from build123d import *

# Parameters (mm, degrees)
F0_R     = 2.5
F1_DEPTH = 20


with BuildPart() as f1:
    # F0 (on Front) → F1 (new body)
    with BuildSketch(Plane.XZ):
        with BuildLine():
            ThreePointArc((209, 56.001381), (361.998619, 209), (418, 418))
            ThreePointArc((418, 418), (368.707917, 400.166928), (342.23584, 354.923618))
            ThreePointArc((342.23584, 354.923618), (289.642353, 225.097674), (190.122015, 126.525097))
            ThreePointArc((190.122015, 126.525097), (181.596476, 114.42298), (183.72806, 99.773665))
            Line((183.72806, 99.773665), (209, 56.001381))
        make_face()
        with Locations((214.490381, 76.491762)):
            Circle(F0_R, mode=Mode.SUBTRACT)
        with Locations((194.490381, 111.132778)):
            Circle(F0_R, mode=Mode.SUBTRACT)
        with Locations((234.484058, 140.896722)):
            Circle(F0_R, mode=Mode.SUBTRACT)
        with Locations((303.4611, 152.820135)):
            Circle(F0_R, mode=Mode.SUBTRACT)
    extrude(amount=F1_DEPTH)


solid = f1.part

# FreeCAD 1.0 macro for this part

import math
import FreeCAD as App
import Part
import Sketcher
Q = App.Units.Quantity

doc = App.newDocument("Part")
body = doc.addObject("PartDesign::Body", "Body")

# Sketch on XZ plane
sketch1 = body.newObject("Sketcher::SketchObject", "Sketch")
sketch1.AttachmentSupport = (doc.getObject("XZ_Plane"), [""])
sketch1.MapMode = "FlatFace"
sketch1.addGeometry(Part.ArcOfCircle(Part.Circle(App.Vector(0, 418, 0), App.Vector(0, 0, 1), 418), math.radians(-60), math.radians(0)), False)
sketch1.addGeometry(Part.ArcOfCircle(Part.Circle(App.Vector(418, 341, 0), App.Vector(0, 0, 1), 77), math.radians(90), math.radians(170)), False)
sketch1.addGeometry(Part.ArcOfCircle(Part.Circle(App.Vector(0, 418, 0), App.Vector(0, 0, 1), 348), math.radians(-57), math.radians(-10)), False)
sketch1.addGeometry(Part.ArcOfCircle(Part.Circle(App.Vector(201, 109.8, 0), App.Vector(0, 0, 1), 20), math.radians(123), math.radians(210)), False)
sketch1.addGeometry(Part.LineSegment(App.Vector(183.7, 99.8, 0), App.Vector(209, 56, 0)), False)
sketch1.addGeometry(Part.Circle(App.Vector(214.5, 76.5, 0), App.Vector(0, 0, 1), 2.5), False)
sketch1.addGeometry(Part.Circle(App.Vector(194.5, 111.1, 0), App.Vector(0, 0, 1), 2.5), False)
sketch1.addGeometry(Part.Circle(App.Vector(234.5, 140.9, 0), App.Vector(0, 0, 1), 2.5), False)
sketch1.addGeometry(Part.Circle(App.Vector(303.5, 152.8, 0), App.Vector(0, 0, 1), 2.5), False)
sketch1.addConstraint(Sketcher.Constraint("Coincident", 0, 2, 1, 1))
sketch1.addConstraint(Sketcher.Constraint("Tangent", 1, 2, 2, 2))
sketch1.addConstraint(Sketcher.Constraint("Tangent", 2, 1, 3, 1))
sketch1.addConstraint(Sketcher.Constraint("Tangent", 3, 2, 4, 1))
sketch1.addConstraint(Sketcher.Constraint("Coincident", 4, 2, 0, 1))
sketch1.addConstraint(Sketcher.Constraint("Coincident", 2, 3, 0, 3))
sketch1.addConstraint(Sketcher.Constraint("Equal", 5, 6))
sketch1.addConstraint(Sketcher.Constraint("Equal", 6, 7))
sketch1.addConstraint(Sketcher.Constraint("Equal", 7, 8))
sketch1.addConstraint(Sketcher.Constraint("PointOnObject", 0, 3, -2))
sketch1.addConstraint(Sketcher.Constraint("Horizontal", 2, 3, 0, 2))
sketch1.addConstraint(Sketcher.Constraint("Vertical", 1, 3, 0, 2))
sketch1.addConstraint(Sketcher.Constraint("Diameter", 5, 5.0))
sketch1.addConstraint(Sketcher.Constraint("Radius", 0, 417.999999))
sketch1.addConstraint(Sketcher.Constraint("Radius", 3, 20.000001))
sketch1.addConstraint(Sketcher.Constraint("Angle", 4, Q("-60 deg")))
sketch1.addConstraint(Sketcher.Constraint("DistanceY", -1, 1, 0, 3, 417.999999))
sketch1.addConstraint(Sketcher.Constraint("DistanceX", -1, 1, 4, 2, 209.0))
sketch1.addConstraint(Sketcher.Constraint("DistanceX", 6, 3, 5, 3, 20.0))
sketch1.addConstraint(Sketcher.Constraint("Radius", 1, 77.04023))
sketch1.addConstraint(Sketcher.Constraint("DistanceX", 3, 2, 7, 3, 50.755998))
sketch1.addConstraint(Sketcher.Constraint("DistanceX", -1, 1, 8, 3, 303.4611))
sketch1.addConstraint(Sketcher.Constraint("DistanceX", -1, 1, 5, 3, 214.490381))
sketch1.addConstraint(Sketcher.Constraint("DistanceY", -1, 1, 5, 3, 76.491762))
sketch1.addConstraint(Sketcher.Constraint("DistanceY", -1, 1, 6, 3, 111.132778))
sketch1.addConstraint(Sketcher.Constraint("DistanceY", 5, 3, 7, 3, 64.40496))
sketch1.addConstraint(Sketcher.Constraint("DistanceY", 3, 3, 8, 3, 43.046469))
pad1 = body.newObject("PartDesign::Pad", "Pad")
pad1.Profile = sketch1
pad1.Length = 20

doc.recompute()
